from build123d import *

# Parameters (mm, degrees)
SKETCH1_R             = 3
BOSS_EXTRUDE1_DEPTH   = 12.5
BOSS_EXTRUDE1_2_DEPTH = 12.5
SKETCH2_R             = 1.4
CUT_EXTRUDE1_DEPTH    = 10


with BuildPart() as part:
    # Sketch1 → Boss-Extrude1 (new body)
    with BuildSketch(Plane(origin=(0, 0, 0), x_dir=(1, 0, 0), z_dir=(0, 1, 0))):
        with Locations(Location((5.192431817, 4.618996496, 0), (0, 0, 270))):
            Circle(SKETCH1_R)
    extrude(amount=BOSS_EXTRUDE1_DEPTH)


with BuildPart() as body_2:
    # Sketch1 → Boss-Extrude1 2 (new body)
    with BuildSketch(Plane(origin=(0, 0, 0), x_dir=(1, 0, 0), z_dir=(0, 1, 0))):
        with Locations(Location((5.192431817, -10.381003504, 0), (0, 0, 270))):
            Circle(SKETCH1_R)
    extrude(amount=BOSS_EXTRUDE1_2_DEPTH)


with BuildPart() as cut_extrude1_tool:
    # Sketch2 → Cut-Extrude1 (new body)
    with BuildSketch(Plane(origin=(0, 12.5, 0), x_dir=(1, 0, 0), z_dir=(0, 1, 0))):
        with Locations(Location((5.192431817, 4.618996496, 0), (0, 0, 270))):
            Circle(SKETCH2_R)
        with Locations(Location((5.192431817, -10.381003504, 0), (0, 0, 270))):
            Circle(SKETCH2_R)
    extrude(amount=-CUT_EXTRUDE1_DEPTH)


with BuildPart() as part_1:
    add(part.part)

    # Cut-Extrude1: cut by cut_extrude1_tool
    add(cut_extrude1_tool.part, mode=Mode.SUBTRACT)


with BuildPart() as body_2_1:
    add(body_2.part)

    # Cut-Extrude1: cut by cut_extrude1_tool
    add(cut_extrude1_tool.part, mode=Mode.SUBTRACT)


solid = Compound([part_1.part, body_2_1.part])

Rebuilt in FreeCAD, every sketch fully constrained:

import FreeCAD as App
import Part
import Sketcher
from FreeCAD import Vector
Q = App.Units.Quantity

doc = App.newDocument("Part")
body = doc.addObject("PartDesign::Body", "Body")

# Sketch on XZ plane
sketch1 = body.newObject("Sketcher::SketchObject", "Sketch")
sketch1.AttachmentSupport = (doc.getObject("XZ_Plane"), [""])
sketch1.MapMode = "FlatFace"
sketch1.addGeometry(Part.Circle(Vector(5.2, -4.6, 0), Vector(0, 0, 1), 3), False)
sketch1.addConstraint([
    Sketcher.Constraint("Diameter", 0, Q("6 mm")),
    Sketcher.Constraint("DistanceX", -1, 1, 0, 3, Q("5.192432 mm")),
    Sketcher.Constraint("DistanceY", 0, 3, -1, 1, Q("4.618996 mm")),
])
pad1 = body.newObject("PartDesign::Pad", "Pad")
pad1.Profile = sketch1
pad1.Length = 12.5
pad1.Reversed = True
body2 = doc.addObject("PartDesign::Body", "Body001")

# Sketch on XZ plane
sketch2 = body2.newObject("Sketcher::SketchObject", "Sketch001")
sketch2.AttachmentSupport = (doc.getObject("XZ_Plane001"), [""])
sketch2.MapMode = "FlatFace"
sketch2.addGeometry(Part.Circle(Vector(5.2, 10.4, 0), Vector(0, 0, 1), 3), False)
sketch2.addConstraint([
    Sketcher.Constraint("Diameter", 0, Q("6 mm")),
    Sketcher.Constraint("DistanceX", -1, 1, 0, 3, Q("5.192432 mm")),
    Sketcher.Constraint("DistanceY", -1, 1, 0, 3, Q("10.381004 mm")),
])
pad2 = body2.newObject("PartDesign::Pad", "Pad001")
pad2.Profile = sketch2
pad2.Length = 12.5
pad2.Reversed = True
body3 = doc.addObject("PartDesign::Body", "Body002")
body3.AllowCompound = True

# Sketch on XZ plane
sketch3 = body3.newObject("Sketcher::SketchObject", "Sketch002")
sketch3.AttachmentSupport = (doc.getObject("XZ_Plane002"), [""])
sketch3.MapMode = "FlatFace"
sketch3.AttachmentOffset = App.Placement(Vector(0, 0, -12.5), App.Rotation())
sketch3.addGeometry([
    Part.Circle(Vector(5.2, -4.6, 0), Vector(0, 0, 1), 1.4),
    Part.Circle(Vector(5.2, 10.4, 0), Vector(0, 0, 1), 1.4),
], False)
sketch3.addConstraint([
    Sketcher.Constraint("Equal", 0, 1),
    Sketcher.Constraint("Vertical", 0, 3, 1, 3),
    Sketcher.Constraint("Diameter", 0, Q("2.8 mm")),
    Sketcher.Constraint("DistanceY", 0, 3, 1, 3, Q("15 mm")),
    Sketcher.Constraint("DistanceX", -1, 1, 0, 3, Q("5.192432 mm")),
    Sketcher.Constraint("DistanceY", 0, 3, -1, 1, Q("4.618996 mm")),
])
pad3 = body3.newObject("PartDesign::Pad", "Pad002")
pad3.Profile = sketch3
pad3.Length = 10
doc.recompute()

body4 = doc.addObject("PartDesign::Body", "Body003")
body4.BaseFeature = body3
boolean = body.newObject("PartDesign::Boolean", "Boolean")
boolean.Type = "Cut"
boolean.addObjects([body4])
doc.recompute()

boolean2 = body2.newObject("PartDesign::Boolean", "Boolean001")
boolean2.Type = "Cut"
boolean2.addObjects([body3])

doc.recompute()
